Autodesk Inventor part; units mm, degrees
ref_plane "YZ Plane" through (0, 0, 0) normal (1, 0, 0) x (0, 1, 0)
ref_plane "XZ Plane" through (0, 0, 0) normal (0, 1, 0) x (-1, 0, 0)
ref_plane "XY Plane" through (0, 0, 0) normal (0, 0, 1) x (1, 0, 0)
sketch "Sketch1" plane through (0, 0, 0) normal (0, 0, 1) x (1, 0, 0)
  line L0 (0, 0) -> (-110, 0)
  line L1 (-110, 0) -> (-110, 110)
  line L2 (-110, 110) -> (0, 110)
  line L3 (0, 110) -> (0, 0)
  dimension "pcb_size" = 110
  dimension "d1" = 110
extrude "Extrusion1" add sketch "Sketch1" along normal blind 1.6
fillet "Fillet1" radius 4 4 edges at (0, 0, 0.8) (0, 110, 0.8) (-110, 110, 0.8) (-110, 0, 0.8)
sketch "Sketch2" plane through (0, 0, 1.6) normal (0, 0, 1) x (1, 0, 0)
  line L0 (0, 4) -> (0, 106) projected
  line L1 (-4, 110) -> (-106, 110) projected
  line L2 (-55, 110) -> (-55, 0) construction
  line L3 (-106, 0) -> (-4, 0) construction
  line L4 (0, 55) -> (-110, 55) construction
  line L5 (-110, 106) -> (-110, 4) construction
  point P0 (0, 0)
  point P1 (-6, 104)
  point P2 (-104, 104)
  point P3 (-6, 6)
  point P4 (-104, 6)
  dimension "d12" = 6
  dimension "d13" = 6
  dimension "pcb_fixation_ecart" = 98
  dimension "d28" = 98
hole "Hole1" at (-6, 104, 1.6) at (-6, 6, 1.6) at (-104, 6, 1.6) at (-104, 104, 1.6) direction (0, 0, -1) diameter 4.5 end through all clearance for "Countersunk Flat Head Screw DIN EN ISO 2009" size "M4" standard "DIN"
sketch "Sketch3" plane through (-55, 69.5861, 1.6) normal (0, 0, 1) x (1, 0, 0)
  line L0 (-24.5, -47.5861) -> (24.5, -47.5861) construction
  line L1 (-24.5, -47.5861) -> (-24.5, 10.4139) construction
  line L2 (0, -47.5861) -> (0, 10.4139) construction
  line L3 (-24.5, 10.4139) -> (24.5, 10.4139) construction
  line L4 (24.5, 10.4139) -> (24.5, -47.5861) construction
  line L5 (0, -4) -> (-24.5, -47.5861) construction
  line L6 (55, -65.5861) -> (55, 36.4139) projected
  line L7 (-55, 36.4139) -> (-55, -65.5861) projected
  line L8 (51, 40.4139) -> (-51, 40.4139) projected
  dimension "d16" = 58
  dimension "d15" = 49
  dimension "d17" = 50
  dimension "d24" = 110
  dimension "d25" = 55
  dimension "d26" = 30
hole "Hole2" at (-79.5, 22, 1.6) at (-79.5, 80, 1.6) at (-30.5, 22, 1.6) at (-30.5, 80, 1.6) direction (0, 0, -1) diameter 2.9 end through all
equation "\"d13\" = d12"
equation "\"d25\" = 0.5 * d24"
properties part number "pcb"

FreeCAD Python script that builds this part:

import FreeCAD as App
import Part
import Sketcher
from FreeCAD import Vector


def edges_at(feature, points):
    """Names of the edges that pass closest to the given points."""
    edges = feature.Shape.Edges
    near = lambda p: min(range(len(edges)), key=lambda i: edges[i].distToShape(Part.Vertex(*p))[0])
    return sorted({f"Edge{near(p) + 1}" for p in points})

doc = App.newDocument("Part")
params = doc.addObject("Spreadsheet::Sheet", "Params")
for row, (alias, value) in enumerate([
    ("sketch1_width", "110 mm"),
    ("pad1_length", "1.6 mm"),
    ("fillet_radius", "4 mm"),
    ("sketch2_diameter", "4.5 mm"),
    ("hole_diameter", "4.5 mm"),
    ("sketch3_diameter", "2.9 mm"),
    ("hole2_diameter", "2.9 mm"),
], start=1):
    params.set(f"A{row}", alias)
    params.set(f"B{row}", "=" + value)
    params.setAlias(f"B{row}", alias)

body = doc.addObject("PartDesign::Body", "Body")

# Sketch on XY plane
sketch1 = body.newObject("Sketcher::SketchObject", "Sketch")
sketch1.AttachmentSupport = (doc.getObject("XY_Plane"), [""])
sketch1.MapMode = "FlatFace"
sketch1.addGeometry([
    Part.LineSegment(Vector(-110, 0, 0), Vector(0, 0, 0)),
    Part.LineSegment(Vector(0, 0, 0), Vector(0, 110, 0)),
    Part.LineSegment(Vector(0, 110, 0), Vector(-110, 110, 0)),
    Part.LineSegment(Vector(-110, 110, 0), Vector(-110, 0, 0)),
], False)
sketch1.addConstraint([
    Sketcher.Constraint("Coincident", 0, 2, 1, 1),
    Sketcher.Constraint("Coincident", 1, 2, 2, 1),
    Sketcher.Constraint("Coincident", 2, 2, 3, 1),
    Sketcher.Constraint("Coincident", 3, 2, 0, 1),
    Sketcher.Constraint("Horizontal", 0),
    Sketcher.Constraint("Vertical", 1),
    Sketcher.Constraint("Horizontal", 2),
    Sketcher.Constraint("Vertical", 3),
    Sketcher.Constraint("Coincident", 0, 2, -1, 1),
    Sketcher.Constraint("Equal", 2, 1),
    Sketcher.Constraint("DistanceX", 0, 1, 0, 2, 110.0),
])
sketch1.setExpression("Constraints[10]", "Params.sketch1_width")
pad1 = body.newObject("PartDesign::Pad", "Pad")
pad1.Profile = sketch1
pad1.setExpression("Length", "Params.pad1_length")
doc.recompute()

fillet = body.newObject("PartDesign::Fillet", "Fillet")
fillet.Base = (pad1, edges_at(pad1, [
    (0, 0, 0.8),
    (0, 110, 0.8),
    (-110, 110, 0.8),
    (-110, 0, 0.8),
]))
fillet.setExpression("Radius", "Params.fillet_radius")

# Sketch on XY plane
sketch2 = body.newObject("Sketcher::SketchObject", "Sketch001")
sketch2.AttachmentSupport = (doc.getObject("XY_Plane"), [""])
sketch2.MapMode = "FlatFace"
sketch2.AttachmentOffset = App.Placement(Vector(0, 0, 1.6), App.Rotation())
sketch2.addGeometry([
    Part.Circle(Vector(-6, 104, 0), Vector(0, 0, 1), 2.2),
    Part.Circle(Vector(-6, 6, 0), Vector(0, 0, 1), 2.2),
    Part.Circle(Vector(-104, 6, 0), Vector(0, 0, 1), 2.2),
    Part.Circle(Vector(-104, 104, 0), Vector(0, 0, 1), 2.2),
], False)
sketch2.addConstraint([
    Sketcher.Constraint("Equal", 0, 1),
    Sketcher.Constraint("Equal", 1, 2),
    Sketcher.Constraint("Equal", 2, 3),
    Sketcher.Constraint("Horizontal", 1, 3, 2, 3),
    Sketcher.Constraint("Horizontal", 0, 3, 3, 3),
    Sketcher.Constraint("Vertical", 0, 3, 1, 3),
    Sketcher.Constraint("Vertical", 2, 3, 3, 3),
    Sketcher.Constraint("Diameter", 0, 4.5),
    Sketcher.Constraint("DistanceX", 0, 3, -1, 1, 6.0),
    Sketcher.Constraint("DistanceY", -1, 1, 0, 3, 104.0),
    Sketcher.Constraint("DistanceY", -1, 1, 1, 3, 6.0),
    Sketcher.Constraint("DistanceX", 2, 3, -1, 1, 104.0),
])
sketch2.setExpression("Constraints[7]", "Params.sketch2_diameter")
doc.recompute()
hole = body.newObject("PartDesign::Hole", "Hole")
hole.Profile = sketch2
hole.ThreadType = "None"
hole.setExpression("Diameter", "Params.hole_diameter")
hole.DepthType = "ThroughAll"

# Sketch on XY plane
sketch3 = body.newObject("Sketcher::SketchObject", "Sketch002")
sketch3.AttachmentSupport = (doc.getObject("XY_Plane"), [""])
sketch3.MapMode = "FlatFace"
sketch3.AttachmentOffset = App.Placement(Vector(0, 0, 1.6), App.Rotation())
sketch3.addGeometry([
    Part.Circle(Vector(-79.5, 22, 0), Vector(0, 0, 1), 1.4),
    Part.Circle(Vector(-79.5, 80, 0), Vector(0, 0, 1), 1.4),
    Part.Circle(Vector(-30.5, 22, 0), Vector(0, 0, 1), 1.4),
    Part.Circle(Vector(-30.5, 80, 0), Vector(0, 0, 1), 1.4),
], False)
sketch3.addConstraint([
    Sketcher.Constraint("Equal", 0, 1),
    Sketcher.Constraint("Equal", 1, 2),
    Sketcher.Constraint("Equal", 2, 3),
    Sketcher.Constraint("Horizontal", 0, 3, 2, 3),
    Sketcher.Constraint("Horizontal", 1, 3, 3, 3),
    Sketcher.Constraint("Vertical", 0, 3, 1, 3),
    Sketcher.Constraint("Vertical", 2, 3, 3, 3),
    Sketcher.Constraint("Diameter", 0, 2.9),
    Sketcher.Constraint("DistanceY", -1, 1, 0, 3, 22.0),
    Sketcher.Constraint("DistanceY", -1, 1, 1, 3, 80.0),
    Sketcher.Constraint("DistanceX", 0, 3, 2, 3, 49.0),
    Sketcher.Constraint("DistanceX", 0, 3, -1, 1, 79.5),
])
sketch3.setExpression("Constraints[7]", "Params.sketch3_diameter")
doc.recompute()
hole2 = body.newObject("PartDesign::Hole", "Hole001")
hole2.Profile = sketch3
hole2.ThreadType = "None"
hole2.setExpression("Diameter", "Params.hole2_diameter")
hole2.DepthType = "ThroughAll"

doc.recompute()
